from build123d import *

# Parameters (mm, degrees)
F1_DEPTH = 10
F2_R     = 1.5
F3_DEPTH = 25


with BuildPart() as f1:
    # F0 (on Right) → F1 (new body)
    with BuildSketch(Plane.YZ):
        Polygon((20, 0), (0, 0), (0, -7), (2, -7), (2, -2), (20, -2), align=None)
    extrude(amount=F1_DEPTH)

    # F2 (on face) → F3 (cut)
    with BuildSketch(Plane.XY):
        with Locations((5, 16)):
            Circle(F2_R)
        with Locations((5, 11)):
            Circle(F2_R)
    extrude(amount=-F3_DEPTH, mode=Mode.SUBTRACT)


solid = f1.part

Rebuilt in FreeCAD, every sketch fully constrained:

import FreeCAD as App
import Part
import Sketcher

V = App.Vector

doc = App.newDocument("Part")
params = doc.addObject("Spreadsheet::Sheet", "Params")
for row, (alias, value) in enumerate([
    ("sketch1_width", "20 mm"),
    ("sketch1_width2", "2 mm"),
    ("sketch1_height", "7 mm"),
    ("pad1_length", "10 mm"),
    ("sketch2_diameter", "3 mm"),
    ("pocket1_length", "25 mm"),
], start=1):
    params.set(f"A{row}", alias)
    params.set(f"B{row}", "=" + value)
    params.setAlias(f"B{row}", alias)

body = doc.addObject("PartDesign::Body", "Body")

# Sketch on YZ plane
sketch1 = doc.addObject("Sketcher::SketchObject", "Sketch")
body.addObject(sketch1)
sketch1.AttachmentSupport = (doc.YZ_Plane, [""])
sketch1.MapMode = "FlatFace"
sketch1.addGeometry(Part.LineSegment(V(20, 0, 0), V(0, 0, 0)), False)
sketch1.addGeometry(Part.LineSegment(V(0, 0, 0), V(0, -7, 0)), False)
sketch1.addGeometry(Part.LineSegment(V(0, -7, 0), V(2, -7, 0)), False)
sketch1.addGeometry(Part.LineSegment(V(2, -7, 0), V(2, -2, 0)), False)
sketch1.addGeometry(Part.LineSegment(V(2, -2, 0), V(20, -2, 0)), False)
sketch1.addGeometry(Part.LineSegment(V(20, -2, 0), V(20, 0, 0)), False)
sketch1.addConstraint(Sketcher.Constraint("Coincident", 0, 2, 1, 1))
sketch1.addConstraint(Sketcher.Constraint("Coincident", 1, 2, 2, 1))
sketch1.addConstraint(Sketcher.Constraint("Coincident", 2, 2, 3, 1))
sketch1.addConstraint(Sketcher.Constraint("Coincident", 3, 2, 4, 1))
sketch1.addConstraint(Sketcher.Constraint("Coincident", 4, 2, 5, 1))
sketch1.addConstraint(Sketcher.Constraint("Coincident", 5, 2, 0, 1))
sketch1.addConstraint(Sketcher.Constraint("Horizontal", 0))
sketch1.addConstraint(Sketcher.Constraint("Vertical", 1))
sketch1.addConstraint(Sketcher.Constraint("Horizontal", 2))
sketch1.addConstraint(Sketcher.Constraint("Vertical", 3))
sketch1.addConstraint(Sketcher.Constraint("Horizontal", 4))
sketch1.addConstraint(Sketcher.Constraint("Vertical", 5))
sketch1.addConstraint(Sketcher.Constraint("Coincident", 0, 2, -1, 1))
sketch1.addConstraint(Sketcher.Constraint("Equal", 2, 5))
sketch1.addConstraint(Sketcher.Constraint("DistanceX", 0, 2, 0, 1, 20.0))
sketch1.addConstraint(Sketcher.Constraint("DistanceX", 2, 1, 2, 2, 2.0))
sketch1.addConstraint(Sketcher.Constraint("DistanceY", 1, 2, 1, 1, 7.0))
sketch1.setExpression("Constraints[14]", "Params.sketch1_width")
sketch1.setExpression("Constraints[15]", "Params.sketch1_width2")
sketch1.setExpression("Constraints[16]", "Params.sketch1_height")
pad1 = doc.addObject("PartDesign::Pad", "Pad")
body.addObject(pad1)
pad1.Profile = sketch1
pad1.setExpression("Length", "Params.pad1_length")

# Sketch on XY plane
sketch2 = doc.addObject("Sketcher::SketchObject", "Sketch001")
body.addObject(sketch2)
sketch2.AttachmentSupport = (doc.XY_Plane, [""])
sketch2.MapMode = "FlatFace"
sketch2.addGeometry(Part.Circle(V(5, 16, 0), V(0, 0, 1), 1.5), False)
sketch2.addGeometry(Part.Circle(V(5, 11, 0), V(0, 0, 1), 1.5), False)
sketch2.addConstraint(Sketcher.Constraint("Equal", 0, 1))
sketch2.addConstraint(Sketcher.Constraint("Vertical", 0, 3, 1, 3))
sketch2.addConstraint(Sketcher.Constraint("Diameter", 0, 3.0))
sketch2.addConstraint(Sketcher.Constraint("DistanceX", -1, 1, 0, 3, 5.0))
sketch2.addConstraint(Sketcher.Constraint("DistanceY", -1, 1, 0, 3, 16.0))
sketch2.addConstraint(Sketcher.Constraint("DistanceY", -1, 1, 1, 3, 11.0))
sketch2.setExpression("Constraints[2]", "Params.sketch2_diameter")
pocket1 = doc.addObject("PartDesign::Pocket", "Pocket")
body.addObject(pocket1)
pocket1.Profile = sketch2
pocket1.setExpression("Length", "Params.pocket1_length")

doc.recompute()
